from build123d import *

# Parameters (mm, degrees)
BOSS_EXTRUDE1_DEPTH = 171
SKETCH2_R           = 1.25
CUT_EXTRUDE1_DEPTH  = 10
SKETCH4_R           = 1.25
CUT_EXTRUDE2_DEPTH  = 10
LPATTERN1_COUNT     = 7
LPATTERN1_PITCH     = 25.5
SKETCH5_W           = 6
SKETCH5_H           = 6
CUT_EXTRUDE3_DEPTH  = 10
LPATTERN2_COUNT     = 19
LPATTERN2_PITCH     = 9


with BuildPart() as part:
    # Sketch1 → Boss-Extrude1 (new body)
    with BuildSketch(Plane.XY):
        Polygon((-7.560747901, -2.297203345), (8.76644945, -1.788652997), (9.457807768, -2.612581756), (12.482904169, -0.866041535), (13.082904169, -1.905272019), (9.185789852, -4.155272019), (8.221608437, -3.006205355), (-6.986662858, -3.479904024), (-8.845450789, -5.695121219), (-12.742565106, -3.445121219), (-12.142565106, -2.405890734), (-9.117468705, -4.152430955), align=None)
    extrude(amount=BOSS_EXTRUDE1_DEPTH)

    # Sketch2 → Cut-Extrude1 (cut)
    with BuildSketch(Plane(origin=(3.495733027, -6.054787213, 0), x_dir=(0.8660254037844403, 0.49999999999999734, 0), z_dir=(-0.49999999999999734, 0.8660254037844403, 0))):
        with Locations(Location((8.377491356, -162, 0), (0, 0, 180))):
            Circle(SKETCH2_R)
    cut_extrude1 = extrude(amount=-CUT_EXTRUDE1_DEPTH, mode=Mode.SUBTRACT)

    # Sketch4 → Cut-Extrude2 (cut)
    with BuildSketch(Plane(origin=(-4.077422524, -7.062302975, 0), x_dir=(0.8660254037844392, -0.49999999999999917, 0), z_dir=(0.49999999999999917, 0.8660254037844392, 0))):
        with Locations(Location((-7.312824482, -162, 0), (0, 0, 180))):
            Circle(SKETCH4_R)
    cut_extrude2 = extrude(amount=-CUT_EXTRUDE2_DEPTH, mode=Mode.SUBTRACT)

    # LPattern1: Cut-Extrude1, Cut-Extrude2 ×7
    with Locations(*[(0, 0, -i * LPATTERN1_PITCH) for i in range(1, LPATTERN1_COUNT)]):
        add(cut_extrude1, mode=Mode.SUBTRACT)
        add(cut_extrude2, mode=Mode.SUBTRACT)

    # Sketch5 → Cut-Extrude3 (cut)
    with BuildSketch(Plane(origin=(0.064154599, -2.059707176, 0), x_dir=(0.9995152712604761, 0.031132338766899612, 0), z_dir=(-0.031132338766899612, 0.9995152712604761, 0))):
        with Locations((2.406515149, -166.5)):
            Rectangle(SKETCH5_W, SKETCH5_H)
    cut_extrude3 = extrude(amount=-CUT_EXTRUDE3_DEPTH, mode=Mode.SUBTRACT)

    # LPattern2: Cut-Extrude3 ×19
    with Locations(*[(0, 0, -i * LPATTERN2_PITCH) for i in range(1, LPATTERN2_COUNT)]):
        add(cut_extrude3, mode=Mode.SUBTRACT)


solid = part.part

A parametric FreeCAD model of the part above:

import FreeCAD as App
import Part
import Sketcher
from FreeCAD import Vector
Q = App.Units.Quantity


def add_polygon(sketch, points):
    """Adds a closed chain of lines whose ends are joined by coincident constraints."""
    first, n = sketch.GeometryCount, len(points)
    for a, b in zip(points, points[1:] + points[:1]):
        sketch.addGeometry(Part.LineSegment(App.Vector(*a, 0), App.Vector(*b, 0)), False)
    for i in range(n):
        sketch.addConstraint(Sketcher.Constraint("Coincident", first + i, 2, first + (i + 1) % n, 1))

doc = App.newDocument("Part")
body = doc.addObject("PartDesign::Body", "Body")

sketch1 = doc.addObject("Sketcher::SketchObject", "Sketch")
body.addObject(sketch1)
sketch1.AttachmentSupport = (doc.XY_Plane, [""])
sketch1.MapMode = "FlatFace"
add_polygon(sketch1, [(8.8, -1.8), (-7.6, -2.3), (-9.1, -4.2), (-12.1, -2.4), (-12.7, -3.4), (-8.8, -5.7), (-7, -3.5), (8.2, -3), (9.2, -4.2), (13.1, -1.9), (12.5, -0.9), (9.5, -2.6)])
sketch1.addConstraint(Sketcher.Constraint("Perpendicular", 2, 3))
sketch1.addConstraint(Sketcher.Constraint("Perpendicular", 3, 4))
sketch1.addConstraint(Sketcher.Constraint("Parallel", 1, 5))
sketch1.addConstraint(Sketcher.Constraint("Parallel", 0, 6))
sketch1.addConstraint(Sketcher.Constraint("Perpendicular", 8, 9))
sketch1.addConstraint(Sketcher.Constraint("Perpendicular", 9, 10))
sketch1.addConstraint(Sketcher.Constraint("Parallel", 7, 11))
sketch1.addConstraint(Sketcher.Constraint("Equal", 4, 8))
sketch1.addConstraint(Sketcher.Constraint("Equal", 3, 9))
sketch1.addConstraint(Sketcher.Constraint("Equal", 2, 10))
sketch1.addConstraint(Sketcher.Constraint("Angle", 1, Q("-130 deg")))
sketch1.addConstraint(Sketcher.Constraint("Angle", 2, Q("150 deg")))
sketch1.addConstraint(Sketcher.Constraint("Angle", 7, Q("-50 deg")))
sketch1.addConstraint(Sketcher.Constraint("Angle", 8, Q("30 deg")))
sketch1.addConstraint(Sketcher.Constraint("Distance", 3, Q("1.2 mm")))
sketch1.addConstraint(Sketcher.Constraint("Distance", 4, Q("4.5 mm")))
sketch1.addConstraint(Sketcher.Constraint("Distance", 7, Q("1.5 mm")))
sketch1.addConstraint(Sketcher.Constraint("DistanceY", 5, 2, 0, 2, Q("1.182701 mm")))
sketch1.addConstraint(Sketcher.Constraint("DistanceY", 5, 2, 6, 2, Q("0.473699 mm")))
sketch1.addConstraint(Sketcher.Constraint("DistanceX", 6, 2, 10, 2, Q("1.236199 mm")))
sketch1.addConstraint(Sketcher.Constraint("Distance", 5, Q("2.891761 mm")))
sketch1.addConstraint(Sketcher.Constraint("DistanceX", 1, 2, -1, 1, Q("9.117469 mm")))
sketch1.addConstraint(Sketcher.Constraint("DistanceY", 1, 2, -1, 1, Q("4.152431 mm")))
sketch1.addConstraint(Sketcher.Constraint("DistanceX", -1, 1, 6, 2, Q("8.221608 mm")))
pad1 = doc.addObject("PartDesign::Pad", "Pad")
body.addObject(pad1)
pad1.Profile = sketch1
pad1.Length = 171

sketch2 = doc.addObject("Sketcher::SketchObject", "Sketch001")
body.addObject(sketch2)
sketch2.Placement = App.Placement(Vector(3.495733, -6.054787, 0), App.Rotation(Vector(0.866025404, 0.5, 0), Vector(0, 0, -1), Vector(-0.5, 0.866025404, 0), "ZXY"))
sketch2.addGeometry(Part.Circle(Vector(8.4, -162, 0), Vector(0, 0, 1), 1.2), False)
sketch2.addConstraint(Sketcher.Constraint("Diameter", 0, Q("2.5 mm")))
sketch2.addConstraint(Sketcher.Constraint("DistanceY", 0, 3, -1, 1, Q("162 mm")))
sketch2.addConstraint(Sketcher.Constraint("DistanceX", -1, 1, 0, 3, Q("8.377491 mm")))
pocket1 = doc.addObject("PartDesign::Pocket", "Pocket")
body.addObject(pocket1)
pocket1.Profile = sketch2
pocket1.Length = 10

sketch3 = doc.addObject("Sketcher::SketchObject", "Sketch002")
body.addObject(sketch3)
sketch3.Placement = App.Placement(Vector(-4.077423, -7.062303, 0), App.Rotation(Vector(0.866025404, -0.5, 0), Vector(0, 0, -1), Vector(0.5, 0.866025404, 0), "ZXY"))
sketch3.addGeometry(Part.Circle(Vector(-7.3, -162, 0), Vector(0, 0, 1), 1.2), False)
sketch3.addConstraint(Sketcher.Constraint("Diameter", 0, Q("2.5 mm")))
sketch3.addConstraint(Sketcher.Constraint("DistanceY", 0, 3, -1, 1, Q("162 mm")))
sketch3.addConstraint(Sketcher.Constraint("DistanceX", 0, 3, -1, 1, Q("7.312824 mm")))
pocket2 = doc.addObject("PartDesign::Pocket", "Pocket001")
body.addObject(pocket2)
pocket2.Profile = sketch3
pocket2.Length = 10
doc.recompute()

linearpattern = doc.addObject("PartDesign::LinearPattern", "LinearPattern")
body.addObject(linearpattern)
linearpattern.Originals = [pocket1, pocket2]
linearpattern.Direction = (doc.Z_Axis, [""])
linearpattern.Mode = "offset"
linearpattern.Offset = 25.5
linearpattern.Occurrences = 7
linearpattern.Reversed = True
body.Tip = linearpattern

sketch4 = doc.addObject("Sketcher::SketchObject", "Sketch003")
body.addObject(sketch4)
sketch4.Placement = App.Placement(Vector(0.064155, -2.059707, 0), App.Rotation(Vector(0.999515271, 0.031132339, 0), Vector(0, 0, -0.999999999), Vector(-0.031132339, 0.999515271, 0), "ZXY"))
add_polygon(sketch4, [(-1, -163), (-1, -169), (5, -169), (5, -163)])
sketch4.addConstraint(Sketcher.Constraint("Vertical", 0))
sketch4.addConstraint(Sketcher.Constraint("Horizontal", 1))
sketch4.addConstraint(Sketcher.Constraint("Vertical", 2))
sketch4.addConstraint(Sketcher.Constraint("Horizontal", 3))
sketch4.addConstraint(Sketcher.Constraint("Equal", 3, 0))
sketch4.addConstraint(Sketcher.Constraint("DistanceX", 1, 1, 1, 2, Q("6 mm")))
sketch4.addConstraint(Sketcher.Constraint("DistanceY", 0, 2, -1, 1, Q("169.5 mm")))
sketch4.addConstraint(Sketcher.Constraint("DistanceX", 0, 2, -1, 1, Q("0.593485 mm")))
pocket3 = doc.addObject("PartDesign::Pocket", "Pocket002")
body.addObject(pocket3)
pocket3.Profile = sketch4
pocket3.Length = 10
doc.recompute()

linearpattern2 = doc.addObject("PartDesign::LinearPattern", "LinearPattern001")
body.addObject(linearpattern2)
linearpattern2.Originals = [pocket3]
linearpattern2.Direction = (doc.Z_Axis, [""])
linearpattern2.Mode = "offset"
linearpattern2.Offset = 9
linearpattern2.Occurrences = 19
linearpattern2.Reversed = True
body.Tip = linearpattern2

doc.recompute()
